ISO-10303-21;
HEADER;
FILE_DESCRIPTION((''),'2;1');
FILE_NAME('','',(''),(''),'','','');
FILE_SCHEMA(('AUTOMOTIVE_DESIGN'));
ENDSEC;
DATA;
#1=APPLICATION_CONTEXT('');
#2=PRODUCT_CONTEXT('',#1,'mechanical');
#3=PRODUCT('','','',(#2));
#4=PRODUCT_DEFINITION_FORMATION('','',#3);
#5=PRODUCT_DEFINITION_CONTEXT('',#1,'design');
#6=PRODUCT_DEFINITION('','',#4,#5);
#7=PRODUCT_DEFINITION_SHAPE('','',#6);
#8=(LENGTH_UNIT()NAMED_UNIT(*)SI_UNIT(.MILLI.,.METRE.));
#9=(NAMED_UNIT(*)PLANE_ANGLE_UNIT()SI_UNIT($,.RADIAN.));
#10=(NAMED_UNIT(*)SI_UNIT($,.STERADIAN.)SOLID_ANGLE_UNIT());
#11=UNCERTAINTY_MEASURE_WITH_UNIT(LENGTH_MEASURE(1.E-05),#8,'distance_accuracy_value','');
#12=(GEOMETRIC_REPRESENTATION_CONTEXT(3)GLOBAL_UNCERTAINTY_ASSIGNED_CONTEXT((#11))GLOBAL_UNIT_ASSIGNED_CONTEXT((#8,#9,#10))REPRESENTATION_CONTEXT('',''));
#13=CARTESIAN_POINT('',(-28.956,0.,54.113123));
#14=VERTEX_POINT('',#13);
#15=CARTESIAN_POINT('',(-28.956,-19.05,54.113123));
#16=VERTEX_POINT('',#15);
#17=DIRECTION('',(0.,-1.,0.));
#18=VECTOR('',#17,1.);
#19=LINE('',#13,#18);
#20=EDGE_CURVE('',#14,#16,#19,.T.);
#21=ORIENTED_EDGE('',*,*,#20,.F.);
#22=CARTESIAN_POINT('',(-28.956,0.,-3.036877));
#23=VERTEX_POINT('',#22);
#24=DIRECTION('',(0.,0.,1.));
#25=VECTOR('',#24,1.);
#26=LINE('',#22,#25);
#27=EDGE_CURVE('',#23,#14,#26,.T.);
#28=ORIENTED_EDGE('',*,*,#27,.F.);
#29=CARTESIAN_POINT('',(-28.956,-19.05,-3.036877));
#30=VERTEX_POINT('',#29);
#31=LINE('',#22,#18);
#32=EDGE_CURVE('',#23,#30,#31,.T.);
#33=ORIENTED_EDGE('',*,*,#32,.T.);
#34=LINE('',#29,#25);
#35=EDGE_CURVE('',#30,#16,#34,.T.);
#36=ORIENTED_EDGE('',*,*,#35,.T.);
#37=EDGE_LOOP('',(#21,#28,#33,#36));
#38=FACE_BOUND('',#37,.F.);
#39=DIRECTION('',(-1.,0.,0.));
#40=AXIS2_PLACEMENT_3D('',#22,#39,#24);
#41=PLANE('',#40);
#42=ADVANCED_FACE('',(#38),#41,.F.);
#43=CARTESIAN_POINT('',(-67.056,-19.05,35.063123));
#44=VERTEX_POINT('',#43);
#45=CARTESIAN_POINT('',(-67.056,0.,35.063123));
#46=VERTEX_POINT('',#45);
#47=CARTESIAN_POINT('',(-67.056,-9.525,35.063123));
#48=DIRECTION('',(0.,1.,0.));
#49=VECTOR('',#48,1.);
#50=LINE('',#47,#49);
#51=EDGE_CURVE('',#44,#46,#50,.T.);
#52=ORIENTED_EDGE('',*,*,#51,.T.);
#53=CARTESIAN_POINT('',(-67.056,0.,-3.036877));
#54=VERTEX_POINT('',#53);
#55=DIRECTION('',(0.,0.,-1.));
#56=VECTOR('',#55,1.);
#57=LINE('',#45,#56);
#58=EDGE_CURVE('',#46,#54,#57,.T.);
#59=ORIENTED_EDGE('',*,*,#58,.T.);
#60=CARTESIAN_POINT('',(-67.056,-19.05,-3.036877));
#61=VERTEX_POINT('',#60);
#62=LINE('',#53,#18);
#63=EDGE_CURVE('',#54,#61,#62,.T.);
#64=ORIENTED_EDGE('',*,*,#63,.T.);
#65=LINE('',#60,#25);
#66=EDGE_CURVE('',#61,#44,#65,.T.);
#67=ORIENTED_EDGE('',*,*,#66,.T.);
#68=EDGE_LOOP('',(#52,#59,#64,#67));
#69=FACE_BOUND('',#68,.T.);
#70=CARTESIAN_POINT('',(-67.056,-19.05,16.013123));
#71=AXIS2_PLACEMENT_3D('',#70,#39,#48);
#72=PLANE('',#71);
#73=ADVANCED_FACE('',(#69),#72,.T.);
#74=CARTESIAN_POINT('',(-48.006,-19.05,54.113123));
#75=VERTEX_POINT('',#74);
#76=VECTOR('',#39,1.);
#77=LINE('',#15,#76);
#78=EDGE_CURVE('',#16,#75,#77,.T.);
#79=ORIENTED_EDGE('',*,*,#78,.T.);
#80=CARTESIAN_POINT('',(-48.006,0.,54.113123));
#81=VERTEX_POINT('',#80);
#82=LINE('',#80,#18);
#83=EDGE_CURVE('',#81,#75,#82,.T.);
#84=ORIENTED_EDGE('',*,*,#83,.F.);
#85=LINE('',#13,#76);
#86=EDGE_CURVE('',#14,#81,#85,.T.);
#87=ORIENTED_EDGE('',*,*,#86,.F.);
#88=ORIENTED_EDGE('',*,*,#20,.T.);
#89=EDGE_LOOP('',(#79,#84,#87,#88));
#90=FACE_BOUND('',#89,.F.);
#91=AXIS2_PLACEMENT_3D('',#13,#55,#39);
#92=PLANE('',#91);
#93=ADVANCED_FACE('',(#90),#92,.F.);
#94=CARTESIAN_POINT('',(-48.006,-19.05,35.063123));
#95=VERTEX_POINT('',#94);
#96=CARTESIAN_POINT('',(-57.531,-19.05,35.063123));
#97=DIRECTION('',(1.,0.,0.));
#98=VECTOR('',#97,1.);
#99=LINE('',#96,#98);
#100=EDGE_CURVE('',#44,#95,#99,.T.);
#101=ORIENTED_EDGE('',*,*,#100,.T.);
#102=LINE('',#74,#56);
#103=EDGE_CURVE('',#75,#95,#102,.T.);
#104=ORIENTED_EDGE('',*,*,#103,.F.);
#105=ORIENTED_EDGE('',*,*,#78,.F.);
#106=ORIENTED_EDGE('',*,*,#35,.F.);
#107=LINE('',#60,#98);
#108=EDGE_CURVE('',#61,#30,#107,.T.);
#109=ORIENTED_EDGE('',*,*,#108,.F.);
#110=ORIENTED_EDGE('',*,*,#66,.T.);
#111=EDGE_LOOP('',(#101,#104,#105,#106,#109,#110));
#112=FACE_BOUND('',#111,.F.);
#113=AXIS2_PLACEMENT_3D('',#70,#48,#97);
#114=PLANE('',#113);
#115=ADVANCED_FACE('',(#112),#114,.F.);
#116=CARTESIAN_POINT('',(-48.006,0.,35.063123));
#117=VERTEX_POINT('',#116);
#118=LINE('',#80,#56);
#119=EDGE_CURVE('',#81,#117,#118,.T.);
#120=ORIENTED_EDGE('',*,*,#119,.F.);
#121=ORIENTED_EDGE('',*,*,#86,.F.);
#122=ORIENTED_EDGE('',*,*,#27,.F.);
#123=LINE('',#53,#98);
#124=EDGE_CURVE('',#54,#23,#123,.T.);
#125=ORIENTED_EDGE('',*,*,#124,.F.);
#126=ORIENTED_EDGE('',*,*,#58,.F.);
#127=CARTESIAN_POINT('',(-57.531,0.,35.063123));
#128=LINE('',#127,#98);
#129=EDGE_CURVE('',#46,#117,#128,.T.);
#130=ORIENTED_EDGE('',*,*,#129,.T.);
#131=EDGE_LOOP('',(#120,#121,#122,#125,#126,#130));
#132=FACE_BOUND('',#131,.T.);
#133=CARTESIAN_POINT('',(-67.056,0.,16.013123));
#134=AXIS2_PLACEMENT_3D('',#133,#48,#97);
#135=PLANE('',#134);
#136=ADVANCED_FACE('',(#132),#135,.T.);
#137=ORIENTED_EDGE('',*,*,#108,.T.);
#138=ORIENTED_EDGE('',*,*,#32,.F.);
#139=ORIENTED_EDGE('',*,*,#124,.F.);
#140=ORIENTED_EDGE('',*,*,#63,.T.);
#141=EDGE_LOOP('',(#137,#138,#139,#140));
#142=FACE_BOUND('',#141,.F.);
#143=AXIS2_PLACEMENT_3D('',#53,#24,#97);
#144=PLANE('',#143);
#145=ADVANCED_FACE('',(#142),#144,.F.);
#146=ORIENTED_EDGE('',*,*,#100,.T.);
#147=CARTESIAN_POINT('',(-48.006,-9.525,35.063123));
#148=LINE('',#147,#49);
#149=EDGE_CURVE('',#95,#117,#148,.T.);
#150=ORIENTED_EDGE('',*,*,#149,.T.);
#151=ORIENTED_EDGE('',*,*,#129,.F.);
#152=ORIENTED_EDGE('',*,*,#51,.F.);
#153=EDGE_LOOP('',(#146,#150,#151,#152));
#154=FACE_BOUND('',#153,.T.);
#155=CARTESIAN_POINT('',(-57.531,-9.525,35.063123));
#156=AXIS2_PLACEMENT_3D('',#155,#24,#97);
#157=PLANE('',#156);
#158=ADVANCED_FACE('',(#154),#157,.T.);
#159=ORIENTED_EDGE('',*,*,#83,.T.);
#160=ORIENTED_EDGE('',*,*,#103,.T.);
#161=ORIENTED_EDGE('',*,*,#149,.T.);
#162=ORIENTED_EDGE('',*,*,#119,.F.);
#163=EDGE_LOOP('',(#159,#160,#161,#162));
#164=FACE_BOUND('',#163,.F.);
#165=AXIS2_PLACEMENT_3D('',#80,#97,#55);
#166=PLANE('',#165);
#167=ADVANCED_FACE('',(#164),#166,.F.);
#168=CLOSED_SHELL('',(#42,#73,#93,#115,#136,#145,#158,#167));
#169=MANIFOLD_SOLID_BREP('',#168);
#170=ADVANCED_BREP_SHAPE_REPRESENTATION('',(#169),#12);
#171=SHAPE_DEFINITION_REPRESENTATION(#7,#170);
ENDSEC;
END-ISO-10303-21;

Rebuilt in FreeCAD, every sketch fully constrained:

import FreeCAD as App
import Part
import Sketcher

V = App.Vector
Q = App.Units.Quantity

doc = App.newDocument("Part")
params = doc.addObject("Spreadsheet::Sheet", "Params")
for row, (alias, value) in enumerate([
    ("sketch1_width", "1.5 in"),
    ("pad1_length", "0.75 in"),
    ("sketch2_width", "0.75 in"),
    ("pad2_length", "0.75 in"),
], start=1):
    params.set(f"A{row}", alias)
    params.set(f"B{row}", "=" + value)
    params.setAlias(f"B{row}", alias)

body = doc.addObject("PartDesign::Body", "Body")

sketch1 = doc.addObject("Sketcher::SketchObject", "Sketch")
body.addObject(sketch1)
sketch1.AttachmentSupport = (doc.XZ_Plane, [""])
sketch1.MapMode = "FlatFace"
sketch1.addGeometry([
    Part.LineSegment(V(-29, 54, 0), V(-48, 54, 0)),
    Part.LineSegment(V(-48, 54, 0), V(-48, 16, 0)),
    Part.LineSegment(V(-48, 16, 0), V(-67, 16, 0)),
    Part.LineSegment(V(-67, 16, 0), V(-67, -3, 0)),
    Part.LineSegment(V(-67, -3, 0), V(-29, -3, 0)),
    Part.LineSegment(V(-29, -3, 0), V(-29, 54, 0)),
], False)
sketch1.addConstraint([
    Sketcher.Constraint("Coincident", 0, 2, 1, 1),
    Sketcher.Constraint("Coincident", 1, 2, 2, 1),
    Sketcher.Constraint("Coincident", 2, 2, 3, 1),
    Sketcher.Constraint("Coincident", 3, 2, 4, 1),
    Sketcher.Constraint("Coincident", 4, 2, 5, 1),
    Sketcher.Constraint("Coincident", 5, 2, 0, 1),
    Sketcher.Constraint("Horizontal", 0),
    Sketcher.Constraint("Vertical", 1),
    Sketcher.Constraint("Horizontal", 2),
    Sketcher.Constraint("Vertical", 3),
    Sketcher.Constraint("Horizontal", 4),
    Sketcher.Constraint("Vertical", 5),
    Sketcher.Constraint("Equal", 0, 2),
    Sketcher.Constraint("Equal", 4, 1),
    Sketcher.Constraint("Equal", 2, 3),
    Sketcher.Constraint("DistanceX", 4, 1, 4, 2, Q("1.5 in")),
    Sketcher.Constraint("DistanceX", 0, 2, -1, 1, Q("1.89 in")),
    Sketcher.Constraint("DistanceY", -1, 1, 0, 2, Q("54.113123 mm")),
])
sketch1.setExpression("Constraints[15]", "Params.sketch1_width")
pad1 = doc.addObject("PartDesign::Pad", "Pad")
body.addObject(pad1)
pad1.Profile = sketch1
pad1.setExpression("Length", "Params.pad1_length")

sketch2 = doc.addObject("Sketcher::SketchObject", "Sketch001")
body.addObject(sketch2)
sketch2.AttachmentSupport = (doc.XY_Plane, [""])
sketch2.MapMode = "FlatFace"
sketch2.AttachmentOffset = App.Placement(V(0, 0, 16.013123), App.Rotation())
sketch2.addGeometry([
    Part.LineSegment(V(-67, 0, 0), V(-67, -19, 0)),
    Part.LineSegment(V(-67, -19, 0), V(-48, -19, 0)),
    Part.LineSegment(V(-48, -19, 0), V(-48, 0, 0)),
    Part.LineSegment(V(-48, 0, 0), V(-67, 0, 0)),
], False)
sketch2.addConstraint([
    Sketcher.Constraint("Coincident", 0, 2, 1, 1),
    Sketcher.Constraint("Coincident", 1, 2, 2, 1),
    Sketcher.Constraint("Coincident", 2, 2, 3, 1),
    Sketcher.Constraint("Coincident", 3, 2, 0, 1),
    Sketcher.Constraint("Vertical", 0),
    Sketcher.Constraint("Horizontal", 1),
    Sketcher.Constraint("Vertical", 2),
    Sketcher.Constraint("Horizontal", 3),
    Sketcher.Constraint("PointOnObject", 2, 2, -1),
    Sketcher.Constraint("Equal", 3, 0),
    Sketcher.Constraint("DistanceX", 1, 1, 1, 2, Q("0.75 in")),
    Sketcher.Constraint("DistanceX", 0, 2, -1, 1, Q("2.64 in")),
])
sketch2.setExpression("Constraints[10]", "Params.sketch2_width")
pad2 = doc.addObject("PartDesign::Pad", "Pad001")
body.addObject(pad2)
pad2.Profile = sketch2
pad2.setExpression("Length", "Params.pad2_length")

doc.recompute()
